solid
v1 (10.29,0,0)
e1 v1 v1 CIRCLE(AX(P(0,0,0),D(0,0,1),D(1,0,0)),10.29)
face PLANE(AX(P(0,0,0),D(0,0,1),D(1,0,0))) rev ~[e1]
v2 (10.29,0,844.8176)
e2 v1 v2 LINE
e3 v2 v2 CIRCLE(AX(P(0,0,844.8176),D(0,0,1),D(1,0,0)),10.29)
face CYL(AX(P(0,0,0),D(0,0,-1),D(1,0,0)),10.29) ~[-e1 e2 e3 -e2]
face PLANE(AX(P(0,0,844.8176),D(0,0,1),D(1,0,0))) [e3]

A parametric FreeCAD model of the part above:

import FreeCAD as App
import Part
import Sketcher
from FreeCAD import Vector
Q = App.Units.Quantity

doc = App.newDocument("Part")
params = doc.addObject("Spreadsheet::Sheet", "Params")
for row, (alias, value) in enumerate([
    ("sketch1_diameter", "20.58 mm"),
    ("pad1_length", "844.8176 mm"),
], start=1):
    params.set(f"A{row}", alias)
    params.set(f"B{row}", "=" + value)
    params.setAlias(f"B{row}", alias)

body = doc.addObject("PartDesign::Body", "Body")

# Sketch on XY plane
sketch1 = body.newObject("Sketcher::SketchObject", "Sketch")
sketch1.AttachmentSupport = (doc.getObject("XY_Plane"), [""])
sketch1.MapMode = "FlatFace"
sketch1.addGeometry(Part.Circle(Vector(0, 0, 0), Vector(0, 0, 1), 10.29), False)
sketch1.addConstraint(Sketcher.Constraint("Coincident", 0, 3, -1, 1))
sketch1.addConstraint(Sketcher.Constraint("Diameter", 0, Q("20.58 mm")))
sketch1.setExpression("Constraints[1]", "Params.sketch1_diameter")
pad1 = body.newObject("PartDesign::Pad", "Pad")
pad1.Profile = sketch1
pad1.setExpression("Length", "Params.pad1_length")

doc.recompute()
